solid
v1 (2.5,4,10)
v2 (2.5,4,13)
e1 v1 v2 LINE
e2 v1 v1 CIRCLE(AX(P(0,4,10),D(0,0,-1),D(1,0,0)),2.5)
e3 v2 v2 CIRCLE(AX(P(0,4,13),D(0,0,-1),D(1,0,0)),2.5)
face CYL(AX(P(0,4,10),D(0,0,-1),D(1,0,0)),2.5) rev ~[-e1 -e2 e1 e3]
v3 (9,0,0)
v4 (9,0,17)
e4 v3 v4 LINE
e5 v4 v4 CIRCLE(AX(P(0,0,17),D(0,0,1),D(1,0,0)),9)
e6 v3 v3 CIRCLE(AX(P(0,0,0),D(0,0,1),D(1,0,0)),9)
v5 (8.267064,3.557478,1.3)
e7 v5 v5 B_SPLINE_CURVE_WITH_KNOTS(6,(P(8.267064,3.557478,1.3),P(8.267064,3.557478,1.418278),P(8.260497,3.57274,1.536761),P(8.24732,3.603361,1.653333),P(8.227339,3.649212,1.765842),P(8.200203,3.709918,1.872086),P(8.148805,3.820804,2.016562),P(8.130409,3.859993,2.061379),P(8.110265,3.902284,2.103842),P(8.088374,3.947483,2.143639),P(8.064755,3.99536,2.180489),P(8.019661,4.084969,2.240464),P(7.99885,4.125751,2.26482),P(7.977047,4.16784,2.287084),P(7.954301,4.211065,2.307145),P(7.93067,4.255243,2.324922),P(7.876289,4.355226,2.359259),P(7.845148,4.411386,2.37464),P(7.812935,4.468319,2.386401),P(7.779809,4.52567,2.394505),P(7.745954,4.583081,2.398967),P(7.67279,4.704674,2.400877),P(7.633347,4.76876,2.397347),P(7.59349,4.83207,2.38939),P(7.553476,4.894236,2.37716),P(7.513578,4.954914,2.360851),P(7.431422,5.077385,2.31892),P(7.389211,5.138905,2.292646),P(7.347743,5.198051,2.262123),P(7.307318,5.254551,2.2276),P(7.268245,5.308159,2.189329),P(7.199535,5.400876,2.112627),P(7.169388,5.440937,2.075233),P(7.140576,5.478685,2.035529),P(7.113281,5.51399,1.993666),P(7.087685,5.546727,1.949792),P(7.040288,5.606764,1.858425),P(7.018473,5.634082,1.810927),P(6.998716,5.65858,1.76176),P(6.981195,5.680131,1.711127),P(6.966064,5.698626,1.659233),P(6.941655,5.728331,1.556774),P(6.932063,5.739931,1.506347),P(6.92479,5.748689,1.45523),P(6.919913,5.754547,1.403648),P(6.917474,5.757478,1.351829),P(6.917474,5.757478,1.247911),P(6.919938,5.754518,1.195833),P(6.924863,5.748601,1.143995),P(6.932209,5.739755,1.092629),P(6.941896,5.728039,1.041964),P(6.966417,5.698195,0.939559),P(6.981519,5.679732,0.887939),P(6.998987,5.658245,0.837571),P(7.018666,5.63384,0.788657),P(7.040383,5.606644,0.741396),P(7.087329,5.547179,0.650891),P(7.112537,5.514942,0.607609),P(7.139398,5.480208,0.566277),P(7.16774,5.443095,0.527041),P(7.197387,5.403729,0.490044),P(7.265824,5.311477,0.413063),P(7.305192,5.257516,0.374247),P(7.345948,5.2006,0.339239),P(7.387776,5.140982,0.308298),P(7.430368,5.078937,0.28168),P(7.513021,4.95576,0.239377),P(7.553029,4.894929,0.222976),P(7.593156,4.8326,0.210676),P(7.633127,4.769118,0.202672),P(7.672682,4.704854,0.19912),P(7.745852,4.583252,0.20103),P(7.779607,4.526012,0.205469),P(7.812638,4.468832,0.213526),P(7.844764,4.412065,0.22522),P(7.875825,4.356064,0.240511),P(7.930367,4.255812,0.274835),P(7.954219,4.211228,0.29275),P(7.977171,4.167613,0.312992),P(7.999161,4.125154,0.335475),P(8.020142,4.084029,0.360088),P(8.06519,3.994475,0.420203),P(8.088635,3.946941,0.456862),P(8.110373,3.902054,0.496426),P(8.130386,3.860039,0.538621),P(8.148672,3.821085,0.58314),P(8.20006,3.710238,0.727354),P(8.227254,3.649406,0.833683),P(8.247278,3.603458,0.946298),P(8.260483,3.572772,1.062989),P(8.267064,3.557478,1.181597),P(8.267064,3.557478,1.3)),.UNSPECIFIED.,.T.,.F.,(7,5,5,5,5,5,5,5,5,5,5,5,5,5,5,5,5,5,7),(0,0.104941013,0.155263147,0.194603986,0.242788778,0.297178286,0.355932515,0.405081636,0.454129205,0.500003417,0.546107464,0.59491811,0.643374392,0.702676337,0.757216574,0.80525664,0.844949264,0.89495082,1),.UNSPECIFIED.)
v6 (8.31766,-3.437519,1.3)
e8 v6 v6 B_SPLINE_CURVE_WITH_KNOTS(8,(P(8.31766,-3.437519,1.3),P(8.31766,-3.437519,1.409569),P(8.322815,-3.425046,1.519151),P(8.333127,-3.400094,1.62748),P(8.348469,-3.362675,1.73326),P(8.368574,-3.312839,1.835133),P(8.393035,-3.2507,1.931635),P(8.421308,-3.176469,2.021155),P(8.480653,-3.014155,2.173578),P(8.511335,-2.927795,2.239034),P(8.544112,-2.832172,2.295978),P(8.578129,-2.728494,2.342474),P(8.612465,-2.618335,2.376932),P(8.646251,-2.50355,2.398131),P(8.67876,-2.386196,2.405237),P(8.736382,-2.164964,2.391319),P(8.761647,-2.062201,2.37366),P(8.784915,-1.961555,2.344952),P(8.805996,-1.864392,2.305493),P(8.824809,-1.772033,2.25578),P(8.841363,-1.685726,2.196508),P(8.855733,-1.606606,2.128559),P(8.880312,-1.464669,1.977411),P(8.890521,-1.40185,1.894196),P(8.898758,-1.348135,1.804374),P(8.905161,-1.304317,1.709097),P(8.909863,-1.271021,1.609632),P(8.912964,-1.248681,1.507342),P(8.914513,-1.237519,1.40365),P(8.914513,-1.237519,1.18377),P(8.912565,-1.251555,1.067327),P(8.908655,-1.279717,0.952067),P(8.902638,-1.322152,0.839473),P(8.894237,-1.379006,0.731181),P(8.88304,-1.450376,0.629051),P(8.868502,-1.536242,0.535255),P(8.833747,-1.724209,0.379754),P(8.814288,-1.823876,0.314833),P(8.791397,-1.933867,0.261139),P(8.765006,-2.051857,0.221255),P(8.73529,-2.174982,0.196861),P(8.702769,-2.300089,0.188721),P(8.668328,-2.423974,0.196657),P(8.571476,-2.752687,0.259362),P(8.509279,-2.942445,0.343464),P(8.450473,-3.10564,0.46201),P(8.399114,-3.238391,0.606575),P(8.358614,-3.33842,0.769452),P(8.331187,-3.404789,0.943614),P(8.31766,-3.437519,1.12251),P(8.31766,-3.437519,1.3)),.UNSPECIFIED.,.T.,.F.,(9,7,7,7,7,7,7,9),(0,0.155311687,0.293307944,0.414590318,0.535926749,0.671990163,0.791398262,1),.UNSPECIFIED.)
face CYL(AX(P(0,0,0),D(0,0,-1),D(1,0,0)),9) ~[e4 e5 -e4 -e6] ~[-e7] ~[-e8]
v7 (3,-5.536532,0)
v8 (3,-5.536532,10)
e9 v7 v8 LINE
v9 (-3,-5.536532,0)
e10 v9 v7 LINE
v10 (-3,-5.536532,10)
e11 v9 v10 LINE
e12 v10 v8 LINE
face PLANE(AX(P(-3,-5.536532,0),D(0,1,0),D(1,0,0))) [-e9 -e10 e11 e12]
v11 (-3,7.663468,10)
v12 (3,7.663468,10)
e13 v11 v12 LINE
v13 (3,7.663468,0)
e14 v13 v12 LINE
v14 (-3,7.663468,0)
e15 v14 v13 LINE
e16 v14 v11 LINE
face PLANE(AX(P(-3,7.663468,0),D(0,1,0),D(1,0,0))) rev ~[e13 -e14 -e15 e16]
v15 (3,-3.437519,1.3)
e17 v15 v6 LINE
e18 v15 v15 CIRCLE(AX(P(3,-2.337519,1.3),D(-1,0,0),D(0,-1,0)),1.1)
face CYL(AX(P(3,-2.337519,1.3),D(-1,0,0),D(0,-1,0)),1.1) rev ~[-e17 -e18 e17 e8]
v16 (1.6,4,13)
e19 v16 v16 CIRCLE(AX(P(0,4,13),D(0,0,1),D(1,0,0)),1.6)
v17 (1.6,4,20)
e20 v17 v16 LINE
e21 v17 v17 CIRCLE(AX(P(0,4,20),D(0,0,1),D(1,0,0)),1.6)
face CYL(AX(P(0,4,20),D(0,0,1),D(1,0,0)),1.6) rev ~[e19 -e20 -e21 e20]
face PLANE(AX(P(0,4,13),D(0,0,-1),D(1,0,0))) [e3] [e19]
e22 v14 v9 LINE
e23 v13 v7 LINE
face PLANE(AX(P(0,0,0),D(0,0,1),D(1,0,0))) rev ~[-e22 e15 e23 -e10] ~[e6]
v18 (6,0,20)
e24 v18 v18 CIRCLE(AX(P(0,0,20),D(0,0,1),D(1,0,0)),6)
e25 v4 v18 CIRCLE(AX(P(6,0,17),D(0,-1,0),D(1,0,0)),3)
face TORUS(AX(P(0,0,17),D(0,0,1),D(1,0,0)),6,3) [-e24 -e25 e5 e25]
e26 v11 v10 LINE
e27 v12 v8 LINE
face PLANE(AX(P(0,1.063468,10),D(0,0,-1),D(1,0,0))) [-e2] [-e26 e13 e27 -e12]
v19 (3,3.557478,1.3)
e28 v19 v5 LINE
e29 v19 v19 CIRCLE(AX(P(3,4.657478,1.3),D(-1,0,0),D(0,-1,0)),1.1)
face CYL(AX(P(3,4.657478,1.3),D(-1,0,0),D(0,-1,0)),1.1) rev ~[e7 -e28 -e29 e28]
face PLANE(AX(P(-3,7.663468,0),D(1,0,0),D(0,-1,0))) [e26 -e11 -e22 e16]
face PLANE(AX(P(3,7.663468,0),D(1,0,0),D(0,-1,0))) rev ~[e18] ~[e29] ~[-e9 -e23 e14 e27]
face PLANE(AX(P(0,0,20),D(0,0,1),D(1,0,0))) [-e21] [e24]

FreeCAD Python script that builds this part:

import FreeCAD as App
import Part
import Sketcher
Q = App.Units.Quantity


def edges_at(feature, points):
    """Names of the edges that pass closest to the given points."""
    edges = feature.Shape.Edges
    near = lambda p: min(range(len(edges)), key=lambda i: edges[i].distToShape(Part.Vertex(*p))[0])
    return sorted({f"Edge{near(p) + 1}" for p in points})


def add_polygon(sketch, points):
    """Adds a closed chain of lines whose ends are joined by coincident constraints."""
    first, n = sketch.GeometryCount, len(points)
    for a, b in zip(points, points[1:] + points[:1]):
        sketch.addGeometry(Part.LineSegment(App.Vector(*a, 0), App.Vector(*b, 0)), False)
    for i in range(n):
        sketch.addConstraint(Sketcher.Constraint("Coincident", first + i, 2, first + (i + 1) % n, 1))

doc = App.newDocument("Part")
body = doc.addObject("PartDesign::Body", "Body")

sketch1 = body.newObject("Sketcher::SketchObject", "Sketch")
sketch1.AttachmentSupport = (doc.getObject("XY_Plane"), [""])
sketch1.MapMode = "FlatFace"
sketch1.addGeometry(Part.Circle(App.Vector(0, 0, 0), App.Vector(0, 0, 1), 9), False)
sketch1.addConstraint(Sketcher.Constraint("Coincident", 0, 3, -1, 1))
sketch1.addConstraint(Sketcher.Constraint("Diameter", 0, Q("18 mm")))
pad1 = body.newObject("PartDesign::Pad", "Pad")
pad1.Profile = sketch1
pad1.Length = 20

sketch2 = body.newObject("Sketcher::SketchObject", "Sketch001")
sketch2.AttachmentSupport = (doc.getObject("XY_Plane"), [""])
sketch2.MapMode = "FlatFace"
add_polygon(sketch2, [(-3, -5.536532), (-3, 7.663468), (3, 7.663468), (3, -5.536532)])
sketch2.addConstraint(Sketcher.Constraint("Vertical", 0))
sketch2.addConstraint(Sketcher.Constraint("Horizontal", 1))
sketch2.addConstraint(Sketcher.Constraint("Vertical", 2))
sketch2.addConstraint(Sketcher.Constraint("Horizontal", 3))
sketch2.addConstraint(Sketcher.Constraint("DistanceX", 1, 1, 1, 2, Q("6 mm")))
sketch2.addConstraint(Sketcher.Constraint("DistanceY", 0, 1, 0, 2, Q("13.2 mm")))
sketch2.addConstraint(Sketcher.Constraint("DistanceX", 0, 2, -1, 1, Q("3 mm")))
sketch2.addConstraint(Sketcher.Constraint("DistanceY", -1, 1, 0, 2, Q("7.663468 mm")))
pocket1 = body.newObject("PartDesign::Pocket", "Pocket")
pocket1.Profile = sketch2
pocket1.Length = 10
pocket1.Reversed = True

sketch3 = body.newObject("Sketcher::SketchObject", "Sketch002")
sketch3.AttachmentSupport = (doc.getObject("XY_Plane"), [""])
sketch3.MapMode = "FlatFace"
sketch3.AttachmentOffset = App.Placement(App.Vector(0, 0, 20), App.Rotation())
sketch3.addGeometry(Part.Circle(App.Vector(0, 4, 0), App.Vector(0, 0, 1), 1.6), False)
sketch3.addConstraint(Sketcher.Constraint("PointOnObject", 0, 3, -2))
sketch3.addConstraint(Sketcher.Constraint("Diameter", 0, Q("3.2 mm")))
sketch3.addConstraint(Sketcher.Constraint("DistanceY", -1, 1, 0, 3, Q("4 mm")))
pocket2 = body.newObject("PartDesign::Pocket", "Pocket001")
pocket2.Profile = sketch3
pocket2.Length = 11
doc.recompute()

fillet = body.newObject("PartDesign::Fillet", "Fillet")
fillet.Base = (pocket2, edges_at(pocket2, [(-9, 0, 20)]))
fillet.Radius = 3

sketch4 = body.newObject("Sketcher::SketchObject", "Sketch003")
sketch4.AttachmentSupport = (doc.getObject("XY_Plane"), [""])
sketch4.MapMode = "FlatFace"
sketch4.AttachmentOffset = App.Placement(App.Vector(0, 0, 10), App.Rotation())
sketch4.addGeometry(Part.Circle(App.Vector(0, 4, 0), App.Vector(0, 0, 1), 2.5), False)
sketch4.addConstraint(Sketcher.Constraint("PointOnObject", 0, 3, -2))
sketch4.addConstraint(Sketcher.Constraint("Diameter", 0, Q("5 mm")))
sketch4.addConstraint(Sketcher.Constraint("DistanceY", -1, 1, 0, 3, Q("4 mm")))
pocket3 = body.newObject("PartDesign::Pocket", "Pocket002")
pocket3.Profile = sketch4
pocket3.Length = 3
pocket3.Reversed = True

sketch5 = body.newObject("Sketcher::SketchObject", "Sketch004")
sketch5.AttachmentSupport = (doc.getObject("YZ_Plane"), [""])
sketch5.MapMode = "FlatFace"
sketch5.AttachmentOffset = App.Placement(App.Vector(0, 0, 3), App.Rotation())
sketch5.addGeometry(Part.Circle(App.Vector(-2.337519, 1.3, 0), App.Vector(0, 0, 1), 1.1), False)
sketch5.addGeometry(Part.Circle(App.Vector(4.657478, 1.3, 0), App.Vector(0, 0, 1), 1.1), False)
sketch5.addConstraint(Sketcher.Constraint("Equal", 0, 1))
sketch5.addConstraint(Sketcher.Constraint("Horizontal", 0, 3, 1, 3))
sketch5.addConstraint(Sketcher.Constraint("Diameter", 0, Q("2.2 mm")))
sketch5.addConstraint(Sketcher.Constraint("DistanceY", -1, 1, 0, 3, Q("1.3 mm")))
sketch5.addConstraint(Sketcher.Constraint("DistanceX", 0, 3, -1, 1, Q("2.337519 mm")))
sketch5.addConstraint(Sketcher.Constraint("DistanceX", -1, 1, 1, 3, Q("4.657478 mm")))
pocket4 = body.newObject("PartDesign::Pocket", "Pocket003")
pocket4.Profile = sketch5
pocket4.Length = 13
pocket4.Reversed = True

doc.recompute()
